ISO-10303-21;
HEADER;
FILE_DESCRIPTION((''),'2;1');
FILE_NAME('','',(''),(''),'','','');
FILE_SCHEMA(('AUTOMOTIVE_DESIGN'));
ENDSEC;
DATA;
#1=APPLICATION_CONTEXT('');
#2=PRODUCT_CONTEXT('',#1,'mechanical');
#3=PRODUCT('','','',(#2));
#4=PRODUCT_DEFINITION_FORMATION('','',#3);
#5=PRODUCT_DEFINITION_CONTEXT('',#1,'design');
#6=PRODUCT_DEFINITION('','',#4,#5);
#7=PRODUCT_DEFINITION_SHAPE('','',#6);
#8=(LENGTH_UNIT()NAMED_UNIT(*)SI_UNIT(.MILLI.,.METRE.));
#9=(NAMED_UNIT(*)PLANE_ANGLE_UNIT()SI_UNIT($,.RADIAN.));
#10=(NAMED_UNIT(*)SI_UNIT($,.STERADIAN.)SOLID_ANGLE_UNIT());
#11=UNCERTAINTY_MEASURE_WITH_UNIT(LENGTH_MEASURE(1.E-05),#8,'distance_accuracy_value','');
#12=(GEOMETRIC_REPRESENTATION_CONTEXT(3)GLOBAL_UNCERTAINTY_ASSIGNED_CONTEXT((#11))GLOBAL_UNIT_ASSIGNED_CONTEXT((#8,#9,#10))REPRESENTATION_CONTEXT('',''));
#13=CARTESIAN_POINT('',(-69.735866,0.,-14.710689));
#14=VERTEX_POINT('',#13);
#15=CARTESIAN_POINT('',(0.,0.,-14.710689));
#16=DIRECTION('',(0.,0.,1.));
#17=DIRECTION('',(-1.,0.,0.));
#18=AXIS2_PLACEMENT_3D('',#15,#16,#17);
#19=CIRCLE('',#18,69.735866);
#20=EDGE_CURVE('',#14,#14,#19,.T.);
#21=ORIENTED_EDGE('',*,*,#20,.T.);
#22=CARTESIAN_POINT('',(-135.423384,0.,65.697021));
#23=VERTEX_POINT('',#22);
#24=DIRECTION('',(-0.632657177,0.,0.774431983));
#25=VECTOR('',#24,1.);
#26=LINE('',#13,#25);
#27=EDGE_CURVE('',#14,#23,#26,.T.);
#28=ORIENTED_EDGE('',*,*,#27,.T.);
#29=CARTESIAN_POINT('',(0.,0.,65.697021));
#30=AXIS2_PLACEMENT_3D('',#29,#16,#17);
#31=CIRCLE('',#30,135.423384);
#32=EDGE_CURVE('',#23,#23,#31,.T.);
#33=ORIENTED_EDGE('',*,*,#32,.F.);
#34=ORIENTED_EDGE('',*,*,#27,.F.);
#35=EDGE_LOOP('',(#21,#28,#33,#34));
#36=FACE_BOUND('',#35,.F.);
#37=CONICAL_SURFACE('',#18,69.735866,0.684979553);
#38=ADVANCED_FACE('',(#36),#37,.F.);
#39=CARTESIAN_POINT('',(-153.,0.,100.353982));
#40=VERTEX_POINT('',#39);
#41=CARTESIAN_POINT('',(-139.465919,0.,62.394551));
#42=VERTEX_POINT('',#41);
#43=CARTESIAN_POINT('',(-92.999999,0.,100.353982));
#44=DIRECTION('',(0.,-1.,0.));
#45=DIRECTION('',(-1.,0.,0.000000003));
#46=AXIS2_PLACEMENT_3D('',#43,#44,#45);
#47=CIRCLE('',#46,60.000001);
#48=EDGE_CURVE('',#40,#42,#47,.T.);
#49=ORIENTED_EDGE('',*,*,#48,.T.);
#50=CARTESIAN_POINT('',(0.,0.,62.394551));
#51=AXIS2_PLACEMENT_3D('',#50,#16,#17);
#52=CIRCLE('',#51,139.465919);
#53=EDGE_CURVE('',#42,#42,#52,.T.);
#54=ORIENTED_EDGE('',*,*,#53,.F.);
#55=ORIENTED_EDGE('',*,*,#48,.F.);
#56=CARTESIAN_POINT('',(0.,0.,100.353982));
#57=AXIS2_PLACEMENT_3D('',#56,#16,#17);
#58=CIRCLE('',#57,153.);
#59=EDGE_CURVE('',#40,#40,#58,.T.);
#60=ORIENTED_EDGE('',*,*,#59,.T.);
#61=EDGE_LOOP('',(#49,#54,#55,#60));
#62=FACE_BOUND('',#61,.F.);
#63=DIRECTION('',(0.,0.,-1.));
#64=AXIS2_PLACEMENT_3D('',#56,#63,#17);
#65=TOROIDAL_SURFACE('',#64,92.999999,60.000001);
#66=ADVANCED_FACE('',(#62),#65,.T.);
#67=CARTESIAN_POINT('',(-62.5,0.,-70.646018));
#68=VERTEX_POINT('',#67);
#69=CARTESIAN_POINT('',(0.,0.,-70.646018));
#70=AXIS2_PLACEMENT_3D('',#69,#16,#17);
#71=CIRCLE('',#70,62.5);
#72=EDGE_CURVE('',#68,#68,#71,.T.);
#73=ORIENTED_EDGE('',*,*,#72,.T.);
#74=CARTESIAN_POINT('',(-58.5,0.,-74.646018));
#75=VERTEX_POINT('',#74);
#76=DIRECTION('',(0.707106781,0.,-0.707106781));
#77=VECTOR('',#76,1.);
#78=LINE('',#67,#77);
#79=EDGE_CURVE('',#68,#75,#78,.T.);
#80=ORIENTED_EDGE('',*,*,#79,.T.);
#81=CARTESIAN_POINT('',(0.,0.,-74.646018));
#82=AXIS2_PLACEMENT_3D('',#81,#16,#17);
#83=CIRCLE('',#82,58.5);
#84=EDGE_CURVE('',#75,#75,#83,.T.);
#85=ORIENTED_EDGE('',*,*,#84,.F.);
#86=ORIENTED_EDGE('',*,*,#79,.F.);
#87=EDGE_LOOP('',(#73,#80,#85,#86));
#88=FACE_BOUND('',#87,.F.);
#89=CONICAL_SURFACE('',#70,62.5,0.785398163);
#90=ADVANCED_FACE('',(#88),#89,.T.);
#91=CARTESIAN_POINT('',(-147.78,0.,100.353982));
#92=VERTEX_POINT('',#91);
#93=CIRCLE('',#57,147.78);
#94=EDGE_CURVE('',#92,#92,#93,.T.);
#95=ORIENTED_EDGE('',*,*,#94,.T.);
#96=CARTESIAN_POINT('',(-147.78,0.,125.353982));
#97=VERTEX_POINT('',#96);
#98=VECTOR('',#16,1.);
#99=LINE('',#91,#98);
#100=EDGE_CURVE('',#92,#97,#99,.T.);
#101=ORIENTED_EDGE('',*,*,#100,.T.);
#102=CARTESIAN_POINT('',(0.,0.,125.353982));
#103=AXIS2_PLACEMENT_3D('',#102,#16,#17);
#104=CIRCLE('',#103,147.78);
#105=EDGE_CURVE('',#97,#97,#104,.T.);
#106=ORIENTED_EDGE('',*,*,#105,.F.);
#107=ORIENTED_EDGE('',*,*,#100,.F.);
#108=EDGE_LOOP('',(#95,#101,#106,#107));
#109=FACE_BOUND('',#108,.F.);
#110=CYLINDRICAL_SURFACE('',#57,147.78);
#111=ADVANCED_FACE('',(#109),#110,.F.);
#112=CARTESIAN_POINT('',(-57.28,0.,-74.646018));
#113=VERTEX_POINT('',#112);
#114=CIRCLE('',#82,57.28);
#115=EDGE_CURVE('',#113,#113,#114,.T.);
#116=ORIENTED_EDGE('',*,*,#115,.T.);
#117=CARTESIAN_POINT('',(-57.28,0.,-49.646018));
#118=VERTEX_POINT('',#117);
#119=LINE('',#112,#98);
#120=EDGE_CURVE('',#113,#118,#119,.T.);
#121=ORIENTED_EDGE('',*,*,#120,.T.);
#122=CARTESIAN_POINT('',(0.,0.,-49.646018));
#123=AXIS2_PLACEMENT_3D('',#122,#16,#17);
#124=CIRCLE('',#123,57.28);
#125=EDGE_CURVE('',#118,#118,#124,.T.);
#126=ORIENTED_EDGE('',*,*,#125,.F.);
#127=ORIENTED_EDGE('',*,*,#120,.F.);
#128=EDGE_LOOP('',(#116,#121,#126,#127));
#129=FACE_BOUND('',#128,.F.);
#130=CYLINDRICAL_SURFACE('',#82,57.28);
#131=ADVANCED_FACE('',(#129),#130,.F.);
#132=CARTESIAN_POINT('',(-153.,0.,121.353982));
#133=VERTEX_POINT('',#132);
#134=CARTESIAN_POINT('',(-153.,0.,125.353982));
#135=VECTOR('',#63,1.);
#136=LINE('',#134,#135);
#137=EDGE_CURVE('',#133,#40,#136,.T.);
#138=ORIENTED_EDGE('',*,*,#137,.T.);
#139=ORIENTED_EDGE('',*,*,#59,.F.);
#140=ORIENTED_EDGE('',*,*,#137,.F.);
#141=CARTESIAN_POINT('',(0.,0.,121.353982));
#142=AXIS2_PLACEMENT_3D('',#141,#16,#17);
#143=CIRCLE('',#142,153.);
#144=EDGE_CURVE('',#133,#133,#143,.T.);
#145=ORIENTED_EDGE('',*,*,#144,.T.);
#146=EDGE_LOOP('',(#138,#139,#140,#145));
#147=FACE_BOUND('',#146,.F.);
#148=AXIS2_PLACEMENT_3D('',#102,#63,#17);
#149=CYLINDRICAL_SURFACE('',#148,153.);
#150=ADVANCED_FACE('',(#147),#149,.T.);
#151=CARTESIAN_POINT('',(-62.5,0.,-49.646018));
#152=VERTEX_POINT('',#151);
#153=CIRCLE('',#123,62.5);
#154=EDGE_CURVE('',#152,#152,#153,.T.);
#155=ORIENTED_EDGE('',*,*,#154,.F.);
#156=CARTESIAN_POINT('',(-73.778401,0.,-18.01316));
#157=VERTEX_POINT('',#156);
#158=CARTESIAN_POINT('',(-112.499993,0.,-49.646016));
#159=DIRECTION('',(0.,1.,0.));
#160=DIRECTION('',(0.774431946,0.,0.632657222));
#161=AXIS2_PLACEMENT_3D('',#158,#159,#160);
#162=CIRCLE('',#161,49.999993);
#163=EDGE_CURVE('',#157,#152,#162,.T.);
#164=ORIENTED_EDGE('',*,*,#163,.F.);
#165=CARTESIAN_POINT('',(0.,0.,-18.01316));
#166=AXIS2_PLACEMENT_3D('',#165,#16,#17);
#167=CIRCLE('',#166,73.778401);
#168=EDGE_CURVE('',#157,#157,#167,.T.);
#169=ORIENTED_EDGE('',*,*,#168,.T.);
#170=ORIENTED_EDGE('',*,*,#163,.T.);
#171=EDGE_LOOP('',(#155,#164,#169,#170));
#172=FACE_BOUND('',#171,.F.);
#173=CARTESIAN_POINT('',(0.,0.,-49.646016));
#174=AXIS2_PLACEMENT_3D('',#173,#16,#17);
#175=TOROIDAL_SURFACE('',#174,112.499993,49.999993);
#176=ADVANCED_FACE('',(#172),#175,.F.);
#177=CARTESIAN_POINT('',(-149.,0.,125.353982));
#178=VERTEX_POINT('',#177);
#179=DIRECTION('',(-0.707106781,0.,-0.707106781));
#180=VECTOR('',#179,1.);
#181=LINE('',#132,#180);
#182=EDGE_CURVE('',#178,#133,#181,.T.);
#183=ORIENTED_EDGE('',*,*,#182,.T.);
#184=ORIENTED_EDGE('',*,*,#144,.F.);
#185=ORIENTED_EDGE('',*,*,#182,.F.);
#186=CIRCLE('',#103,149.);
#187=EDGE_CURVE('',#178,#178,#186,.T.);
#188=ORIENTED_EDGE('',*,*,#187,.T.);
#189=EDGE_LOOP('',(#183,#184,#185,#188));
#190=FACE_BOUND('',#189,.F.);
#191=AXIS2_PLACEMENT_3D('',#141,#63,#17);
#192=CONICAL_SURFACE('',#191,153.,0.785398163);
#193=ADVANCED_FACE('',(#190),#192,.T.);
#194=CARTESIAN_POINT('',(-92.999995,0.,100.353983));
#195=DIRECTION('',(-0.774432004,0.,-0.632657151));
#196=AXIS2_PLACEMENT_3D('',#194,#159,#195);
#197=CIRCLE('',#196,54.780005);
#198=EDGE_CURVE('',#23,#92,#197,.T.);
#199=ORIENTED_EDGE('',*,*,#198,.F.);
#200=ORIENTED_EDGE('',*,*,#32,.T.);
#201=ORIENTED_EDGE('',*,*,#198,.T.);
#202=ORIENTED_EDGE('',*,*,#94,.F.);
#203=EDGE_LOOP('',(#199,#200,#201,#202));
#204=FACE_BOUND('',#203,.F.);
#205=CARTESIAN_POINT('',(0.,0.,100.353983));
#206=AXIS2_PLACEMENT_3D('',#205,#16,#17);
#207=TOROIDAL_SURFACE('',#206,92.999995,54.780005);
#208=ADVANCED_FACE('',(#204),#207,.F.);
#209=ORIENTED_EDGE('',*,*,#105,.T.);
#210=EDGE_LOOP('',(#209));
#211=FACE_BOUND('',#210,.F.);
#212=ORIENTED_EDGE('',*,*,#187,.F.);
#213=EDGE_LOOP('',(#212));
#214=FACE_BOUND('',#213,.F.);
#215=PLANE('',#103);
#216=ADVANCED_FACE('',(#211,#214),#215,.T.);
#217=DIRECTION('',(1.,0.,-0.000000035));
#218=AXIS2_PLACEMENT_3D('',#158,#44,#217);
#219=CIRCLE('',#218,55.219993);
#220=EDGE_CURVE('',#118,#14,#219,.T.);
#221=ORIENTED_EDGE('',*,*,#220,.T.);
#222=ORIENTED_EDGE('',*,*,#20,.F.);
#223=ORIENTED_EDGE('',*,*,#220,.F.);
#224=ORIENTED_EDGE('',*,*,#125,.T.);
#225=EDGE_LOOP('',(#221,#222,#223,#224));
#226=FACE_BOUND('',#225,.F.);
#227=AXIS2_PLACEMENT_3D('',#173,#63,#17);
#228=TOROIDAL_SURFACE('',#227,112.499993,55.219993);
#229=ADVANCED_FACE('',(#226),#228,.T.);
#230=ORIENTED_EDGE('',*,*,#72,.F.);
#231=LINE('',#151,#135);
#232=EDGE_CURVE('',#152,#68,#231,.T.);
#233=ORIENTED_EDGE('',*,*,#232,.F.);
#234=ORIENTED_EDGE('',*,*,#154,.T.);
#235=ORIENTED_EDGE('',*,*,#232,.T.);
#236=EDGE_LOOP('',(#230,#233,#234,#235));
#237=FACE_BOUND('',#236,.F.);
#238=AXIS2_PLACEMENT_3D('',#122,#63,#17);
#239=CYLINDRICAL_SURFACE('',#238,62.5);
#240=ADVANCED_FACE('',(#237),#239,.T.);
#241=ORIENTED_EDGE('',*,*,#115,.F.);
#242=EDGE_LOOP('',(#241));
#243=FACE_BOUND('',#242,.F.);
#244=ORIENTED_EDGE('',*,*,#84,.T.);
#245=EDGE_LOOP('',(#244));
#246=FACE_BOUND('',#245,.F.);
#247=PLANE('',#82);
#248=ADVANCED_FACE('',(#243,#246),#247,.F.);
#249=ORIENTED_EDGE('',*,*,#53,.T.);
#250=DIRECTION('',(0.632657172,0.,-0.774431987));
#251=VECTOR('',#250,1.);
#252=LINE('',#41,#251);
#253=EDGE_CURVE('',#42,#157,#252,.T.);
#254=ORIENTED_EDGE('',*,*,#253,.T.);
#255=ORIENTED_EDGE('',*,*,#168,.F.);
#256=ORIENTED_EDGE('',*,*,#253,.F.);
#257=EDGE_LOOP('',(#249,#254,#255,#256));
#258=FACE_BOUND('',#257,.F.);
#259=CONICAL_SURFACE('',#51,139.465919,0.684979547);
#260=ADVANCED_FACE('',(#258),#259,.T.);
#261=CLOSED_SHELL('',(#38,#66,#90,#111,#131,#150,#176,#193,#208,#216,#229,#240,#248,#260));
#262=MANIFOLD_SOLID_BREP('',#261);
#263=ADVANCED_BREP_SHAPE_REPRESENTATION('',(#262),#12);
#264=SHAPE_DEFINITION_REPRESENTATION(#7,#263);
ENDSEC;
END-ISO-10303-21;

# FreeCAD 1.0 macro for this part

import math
import FreeCAD as App
import Part
import Sketcher
from FreeCAD import Vector


def edges_at(feature, points):
    """Names of the edges that pass closest to the given points."""
    edges = feature.Shape.Edges
    near = lambda p: min(range(len(edges)), key=lambda i: edges[i].distToShape(Part.Vertex(*p))[0])
    return sorted({f"Edge{near(p) + 1}" for p in points})

doc = App.newDocument("Part")
params = doc.addObject("Spreadsheet::Sheet", "Params")
for row, (alias, value) in enumerate([
    ("sketch1_radius", "60.000001 mm"),
    ("sketch1_height", "25 mm"),
    ("sketch1_width", "5.22 mm"),
    ("revolution_angle", "360 deg"),
    ("chamfer_size", "4 mm"),
], start=1):
    params.set(f"A{row}", alias)
    params.set(f"B{row}", "=" + value)
    params.setAlias(f"B{row}", alias)

body = doc.addObject("PartDesign::Body", "Body")

# Sketch on XZ plane
sketch1 = body.newObject("Sketcher::SketchObject", "Sketch")
sketch1.AttachmentSupport = (doc.getObject("XZ_Plane"), [""])
sketch1.MapMode = "FlatFace"
sketch1.addGeometry(Part.LineSegment(Vector(-148, 125, 0), Vector(-153, 125, 0)), False)
sketch1.addGeometry(Part.LineSegment(Vector(-153, 125, 0), Vector(-153, 100, 0)), False)
sketch1.addGeometry(Part.ArcOfCircle(Part.Circle(Vector(-93, 100, 0), Vector(0, 0, 1), 60), math.radians(180), math.radians(219)), False)
sketch1.addGeometry(Part.LineSegment(Vector(-139, 62, 0), Vector(-74, -18, 0)), False)
sketch1.addGeometry(Part.ArcOfCircle(Part.Circle(Vector(-112, -50, 0), Vector(0, 0, 1), 50), math.radians(0), math.radians(39)), False)
sketch1.addGeometry(Part.LineSegment(Vector(-62, -50, 0), Vector(-62, -75, 0)), False)
sketch1.addGeometry(Part.LineSegment(Vector(-62, -75, 0), Vector(-57, -75, 0)), False)
sketch1.addGeometry(Part.LineSegment(Vector(-57, -75, 0), Vector(-57, -50, 0)), False)
sketch1.addGeometry(Part.ArcOfCircle(Part.Circle(Vector(-112, -50, 0), Vector(0, 0, 1), 55), math.radians(0), math.radians(39)), False)
sketch1.addGeometry(Part.LineSegment(Vector(-70, -15, 0), Vector(-135, 66, 0)), False)
sketch1.addGeometry(Part.ArcOfCircle(Part.Circle(Vector(-93, 100, 0), Vector(0, 0, 1), 55), math.radians(-180), math.radians(-141)), False)
sketch1.addGeometry(Part.LineSegment(Vector(-148, 100, 0), Vector(-148, 125, 0)), False)
sketch1.addConstraint(Sketcher.Constraint("Coincident", 0, 2, 1, 1))
sketch1.addConstraint(Sketcher.Constraint("Tangent", 1, 2, 2, 1))
sketch1.addConstraint(Sketcher.Constraint("Tangent", 2, 2, 3, 1))
sketch1.addConstraint(Sketcher.Constraint("Tangent", 3, 2, 4, 2))
sketch1.addConstraint(Sketcher.Constraint("Tangent", 4, 1, 5, 1))
sketch1.addConstraint(Sketcher.Constraint("Coincident", 5, 2, 6, 1))
sketch1.addConstraint(Sketcher.Constraint("Coincident", 6, 2, 7, 1))
sketch1.addConstraint(Sketcher.Constraint("Tangent", 7, 2, 8, 1))
sketch1.addConstraint(Sketcher.Constraint("Tangent", 8, 2, 9, 1))
sketch1.addConstraint(Sketcher.Constraint("Tangent", 9, 2, 10, 2))
sketch1.addConstraint(Sketcher.Constraint("Tangent", 10, 1, 11, 1))
sketch1.addConstraint(Sketcher.Constraint("Coincident", 11, 2, 0, 1))
sketch1.addConstraint(Sketcher.Constraint("Horizontal", 0))
sketch1.addConstraint(Sketcher.Constraint("Vertical", 1))
sketch1.addConstraint(Sketcher.Constraint("Vertical", 5))
sketch1.addConstraint(Sketcher.Constraint("Horizontal", 6))
sketch1.addConstraint(Sketcher.Constraint("Vertical", 7))
sketch1.addConstraint(Sketcher.Constraint("Vertical", 11))
sketch1.addConstraint(Sketcher.Constraint("Coincident", 8, 3, 4, 3))
sketch1.addConstraint(Sketcher.Constraint("Coincident", 10, 3, 2, 3))
sketch1.addConstraint(Sketcher.Constraint("Parallel", 3, 9))
sketch1.addConstraint(Sketcher.Constraint("Equal", 1, 5))
sketch1.addConstraint(Sketcher.Constraint("Radius", 2, 60.000001))
sketch1.addConstraint(Sketcher.Constraint("DistanceY", 1, 2, 1, 1, 25.0))
sketch1.addConstraint(Sketcher.Constraint("DistanceX", 2, 3, -1, 1, 92.999999))
sketch1.addConstraint(Sketcher.Constraint("DistanceY", 4, 3, 2, 3, 149.999998))
sketch1.addConstraint(Sketcher.Constraint("DistanceX", 0, 2, 0, 1, 5.22))
sketch1.addConstraint(Sketcher.Constraint("DistanceX", 4, 1, -1, 1, 62.5))
sketch1.addConstraint(Sketcher.Constraint("DistanceX", 8, 3, 10, 3, 19.499999))
sketch1.addConstraint(Sketcher.Constraint("DistanceY", -1, 1, 2, 3, 100.353982))
sketch1.setExpression("Constraints[22]", "Params.sketch1_radius")
sketch1.setExpression("Constraints[23]", "Params.sketch1_height")
sketch1.setExpression("Constraints[26]", "Params.sketch1_width")
revolution = body.newObject("PartDesign::Revolution", "Revolution")
revolution.Profile = sketch1
revolution.ReferenceAxis = (sketch1, ["V_Axis"])
revolution.setExpression("Angle", "Params.revolution_angle")
doc.recompute()

chamfer = body.newObject("PartDesign::Chamfer", "Chamfer")
chamfer.Base = (revolution, edges_at(revolution, [(153, 0, 125.354), (62.5, 0, -74.646)]))
chamfer.setExpression("Size", "Params.chamfer_size")

doc.recompute()
